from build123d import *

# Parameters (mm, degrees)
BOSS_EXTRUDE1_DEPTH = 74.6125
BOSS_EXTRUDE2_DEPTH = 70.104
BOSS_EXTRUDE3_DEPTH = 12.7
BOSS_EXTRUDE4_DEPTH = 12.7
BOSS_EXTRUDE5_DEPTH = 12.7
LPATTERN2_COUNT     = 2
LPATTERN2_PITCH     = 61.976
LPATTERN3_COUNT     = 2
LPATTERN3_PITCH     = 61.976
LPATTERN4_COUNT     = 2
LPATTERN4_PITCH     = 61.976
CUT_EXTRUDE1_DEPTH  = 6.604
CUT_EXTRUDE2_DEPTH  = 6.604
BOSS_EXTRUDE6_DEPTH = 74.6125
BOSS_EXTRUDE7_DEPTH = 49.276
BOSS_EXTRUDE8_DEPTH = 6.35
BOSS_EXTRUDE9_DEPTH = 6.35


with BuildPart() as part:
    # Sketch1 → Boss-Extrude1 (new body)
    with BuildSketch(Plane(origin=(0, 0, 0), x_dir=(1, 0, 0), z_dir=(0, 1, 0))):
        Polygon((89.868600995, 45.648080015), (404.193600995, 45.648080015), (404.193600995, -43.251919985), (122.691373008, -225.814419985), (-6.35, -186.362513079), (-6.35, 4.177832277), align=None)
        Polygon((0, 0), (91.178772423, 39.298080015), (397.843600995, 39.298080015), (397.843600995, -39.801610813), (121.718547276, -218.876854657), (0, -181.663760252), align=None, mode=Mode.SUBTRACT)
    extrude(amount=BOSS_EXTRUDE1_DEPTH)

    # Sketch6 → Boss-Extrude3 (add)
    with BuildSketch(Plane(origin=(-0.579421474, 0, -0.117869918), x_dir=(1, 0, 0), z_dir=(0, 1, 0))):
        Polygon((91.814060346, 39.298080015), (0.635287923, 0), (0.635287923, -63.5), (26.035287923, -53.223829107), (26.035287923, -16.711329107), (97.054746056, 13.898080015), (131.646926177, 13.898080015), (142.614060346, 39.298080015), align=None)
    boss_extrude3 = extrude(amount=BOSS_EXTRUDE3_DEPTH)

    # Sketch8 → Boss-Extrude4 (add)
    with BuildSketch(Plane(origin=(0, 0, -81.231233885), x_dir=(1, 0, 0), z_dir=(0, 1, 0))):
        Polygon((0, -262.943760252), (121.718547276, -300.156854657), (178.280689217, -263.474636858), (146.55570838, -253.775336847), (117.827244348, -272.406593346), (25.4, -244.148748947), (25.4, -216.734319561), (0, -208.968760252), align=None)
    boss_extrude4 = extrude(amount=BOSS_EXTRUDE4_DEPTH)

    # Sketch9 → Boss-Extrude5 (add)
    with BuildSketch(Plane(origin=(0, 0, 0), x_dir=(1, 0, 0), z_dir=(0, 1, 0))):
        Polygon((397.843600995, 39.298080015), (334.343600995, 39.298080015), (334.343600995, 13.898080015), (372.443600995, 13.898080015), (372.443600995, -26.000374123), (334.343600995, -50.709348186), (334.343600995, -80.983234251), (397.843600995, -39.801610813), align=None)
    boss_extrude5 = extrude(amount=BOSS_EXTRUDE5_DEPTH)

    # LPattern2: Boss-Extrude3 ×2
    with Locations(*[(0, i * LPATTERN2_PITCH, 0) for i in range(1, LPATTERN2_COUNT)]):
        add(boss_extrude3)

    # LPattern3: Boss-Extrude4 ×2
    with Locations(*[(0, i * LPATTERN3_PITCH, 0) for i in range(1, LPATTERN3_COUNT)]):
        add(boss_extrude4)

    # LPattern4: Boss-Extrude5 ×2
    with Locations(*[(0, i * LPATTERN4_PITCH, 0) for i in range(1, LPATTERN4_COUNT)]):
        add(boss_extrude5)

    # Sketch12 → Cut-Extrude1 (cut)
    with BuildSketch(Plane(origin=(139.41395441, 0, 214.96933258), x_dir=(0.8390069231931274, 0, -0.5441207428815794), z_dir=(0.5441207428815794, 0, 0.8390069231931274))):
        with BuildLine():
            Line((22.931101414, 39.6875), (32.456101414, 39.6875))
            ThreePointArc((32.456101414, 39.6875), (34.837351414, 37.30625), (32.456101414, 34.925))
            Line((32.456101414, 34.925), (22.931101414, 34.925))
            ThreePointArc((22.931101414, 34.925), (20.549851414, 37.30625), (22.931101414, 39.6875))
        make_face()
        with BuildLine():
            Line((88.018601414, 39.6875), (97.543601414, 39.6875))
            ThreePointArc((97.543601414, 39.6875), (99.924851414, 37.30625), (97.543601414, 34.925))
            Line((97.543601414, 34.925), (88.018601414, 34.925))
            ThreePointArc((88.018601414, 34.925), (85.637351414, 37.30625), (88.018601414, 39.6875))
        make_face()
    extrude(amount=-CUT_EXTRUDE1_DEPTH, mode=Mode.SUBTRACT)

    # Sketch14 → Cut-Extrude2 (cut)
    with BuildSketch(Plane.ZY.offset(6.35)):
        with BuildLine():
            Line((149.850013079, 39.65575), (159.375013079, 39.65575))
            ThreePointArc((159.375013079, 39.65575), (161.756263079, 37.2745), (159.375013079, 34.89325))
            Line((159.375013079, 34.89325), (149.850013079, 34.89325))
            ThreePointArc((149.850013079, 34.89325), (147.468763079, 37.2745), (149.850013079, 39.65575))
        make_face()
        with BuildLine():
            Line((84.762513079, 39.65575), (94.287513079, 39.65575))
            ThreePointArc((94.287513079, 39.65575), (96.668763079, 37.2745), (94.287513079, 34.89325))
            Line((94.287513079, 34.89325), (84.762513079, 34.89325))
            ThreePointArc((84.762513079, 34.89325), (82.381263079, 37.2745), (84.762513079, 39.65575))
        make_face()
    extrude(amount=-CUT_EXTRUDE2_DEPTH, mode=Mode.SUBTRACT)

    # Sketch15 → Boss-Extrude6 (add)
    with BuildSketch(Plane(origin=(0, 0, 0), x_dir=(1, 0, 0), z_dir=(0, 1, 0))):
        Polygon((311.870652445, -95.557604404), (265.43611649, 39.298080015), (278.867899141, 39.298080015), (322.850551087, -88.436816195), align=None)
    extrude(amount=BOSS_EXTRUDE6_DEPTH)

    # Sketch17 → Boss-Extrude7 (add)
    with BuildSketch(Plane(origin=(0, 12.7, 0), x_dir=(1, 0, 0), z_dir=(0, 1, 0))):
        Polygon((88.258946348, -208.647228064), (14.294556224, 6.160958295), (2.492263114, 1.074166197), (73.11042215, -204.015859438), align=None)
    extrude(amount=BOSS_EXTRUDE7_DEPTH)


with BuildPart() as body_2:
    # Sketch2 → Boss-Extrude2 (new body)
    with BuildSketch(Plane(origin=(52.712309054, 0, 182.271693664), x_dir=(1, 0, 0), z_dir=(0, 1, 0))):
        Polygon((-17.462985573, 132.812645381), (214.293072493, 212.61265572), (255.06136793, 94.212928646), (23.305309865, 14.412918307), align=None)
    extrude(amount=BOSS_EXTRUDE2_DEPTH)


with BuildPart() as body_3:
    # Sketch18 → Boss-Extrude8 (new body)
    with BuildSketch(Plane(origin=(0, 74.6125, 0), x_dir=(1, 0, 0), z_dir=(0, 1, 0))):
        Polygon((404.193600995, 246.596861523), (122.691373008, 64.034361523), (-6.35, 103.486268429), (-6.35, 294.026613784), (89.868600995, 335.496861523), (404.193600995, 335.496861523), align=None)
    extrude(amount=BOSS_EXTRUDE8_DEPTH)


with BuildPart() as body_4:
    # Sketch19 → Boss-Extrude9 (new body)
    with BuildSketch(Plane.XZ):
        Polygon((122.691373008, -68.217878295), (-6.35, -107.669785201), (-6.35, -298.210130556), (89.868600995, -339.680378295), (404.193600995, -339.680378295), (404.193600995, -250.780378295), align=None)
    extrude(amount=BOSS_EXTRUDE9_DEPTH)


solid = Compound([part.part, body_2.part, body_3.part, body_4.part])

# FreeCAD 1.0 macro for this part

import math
import FreeCAD as App
import Part
import Sketcher
Q = App.Units.Quantity

doc = App.newDocument("Part")
body = doc.addObject("PartDesign::Body", "Body")

# Sketch on XZ plane
sketch1 = body.newObject("Sketcher::SketchObject", "Sketch")
sketch1.AttachmentSupport = (doc.getObject("XZ_Plane"), [""])
sketch1.MapMode = "FlatFace"
sketch1.addGeometry([
    Part.LineSegment(App.Vector(404, -46, 0), App.Vector(90, -46, 0)),  # 0
    Part.LineSegment(App.Vector(90, -46, 0), App.Vector(-6, -4, 0)),  # 1
    Part.LineSegment(App.Vector(-6, -4, 0), App.Vector(-6, 186, 0)),  # 2
    Part.LineSegment(App.Vector(-6, 186, 0), App.Vector(123, 226, 0)),  # 3
    Part.LineSegment(App.Vector(123, 226, 0), App.Vector(404, 43, 0)),  # 4
    Part.LineSegment(App.Vector(404, 43, 0), App.Vector(404, -46, 0)),  # 5
    Part.LineSegment(App.Vector(0, 0, 0), App.Vector(91, -39, 0)),  # 6
    Part.LineSegment(App.Vector(91, -39, 0), App.Vector(398, -39, 0)),  # 7
    Part.LineSegment(App.Vector(398, -39, 0), App.Vector(398, 40, 0)),  # 8
    Part.LineSegment(App.Vector(398, 40, 0), App.Vector(122, 219, 0)),  # 9
    Part.LineSegment(App.Vector(122, 219, 0), App.Vector(0, 182, 0)),  # 10
    Part.LineSegment(App.Vector(0, 182, 0), App.Vector(0, 0, 0)),  # 11
], False)
sketch1.addConstraint([
    Sketcher.Constraint("Coincident", 0, 2, 1, 1),
    Sketcher.Constraint("Coincident", 1, 2, 2, 1),
    Sketcher.Constraint("Coincident", 2, 2, 3, 1),
    Sketcher.Constraint("Coincident", 3, 2, 4, 1),
    Sketcher.Constraint("Coincident", 4, 2, 5, 1),
    Sketcher.Constraint("Coincident", 5, 2, 0, 1),
    Sketcher.Constraint("Coincident", 6, 2, 7, 1),
    Sketcher.Constraint("Coincident", 7, 2, 8, 1),
    Sketcher.Constraint("Coincident", 8, 2, 9, 1),
    Sketcher.Constraint("Coincident", 9, 2, 10, 1),
    Sketcher.Constraint("Coincident", 10, 2, 11, 1),
    Sketcher.Constraint("Coincident", 11, 2, 6, 1),
    Sketcher.Constraint("Horizontal", 0),
    Sketcher.Constraint("Vertical", 2),
    Sketcher.Constraint("Vertical", 5),
    Sketcher.Constraint("Horizontal", 7),
    Sketcher.Constraint("Vertical", 8),
    Sketcher.Constraint("Vertical", 11),
    Sketcher.Constraint("Coincident", 11, 2, -1, 1),
    Sketcher.Constraint("Parallel", 1, 6),
    Sketcher.Constraint("Parallel", 4, 9),
    Sketcher.Constraint("Parallel", 3, 10),
    Sketcher.Constraint("DistanceY", 5, 2, 5, 1, Q("3.5 in")),
    Sketcher.Constraint("Angle", 3, Q("17 deg")),
    Sketcher.Constraint("DistanceX", 0, 2, 0, 1, Q("12.375 in")),
    Sketcher.Constraint("DistanceX", 1, 2, -1, 1, Q("0.25 in")),
    Sketcher.Constraint("DistanceY", 0, 2, 6, 2, Q("0.25 in")),
    Sketcher.Constraint("DistanceX", 7, 2, 5, 2, Q("0.25 in")),
    Sketcher.Constraint("Distance", 1, Q("4.125 in")),
    Sketcher.Constraint("Distance", 3, Q("5.3125 in")),
    Sketcher.Constraint("DistanceY", 0, 2, 3, 2, Q("10.6875 in")),
    Sketcher.Constraint("DistanceX", 7, 1, 7, 2, Q("306.664829 mm")),
    Sketcher.Constraint("DistanceY", 8, 1, 8, 2, Q("79.099691 mm")),
    Sketcher.Constraint("DistanceY", 11, 2, 11, 1, Q("181.66376 mm")),
    Sketcher.Constraint("DistanceX", -1, 1, 0, 2, Q("89.868601 mm")),
])
pad1 = body.newObject("PartDesign::Pad", "Pad")
pad1.Profile = sketch1
pad1.Length = Q("2.9375 in")
pad1.Reversed = True

# Sketch on XZ plane
sketch2 = body.newObject("Sketcher::SketchObject", "Sketch001")
sketch2.AttachmentSupport = (doc.getObject("XZ_Plane"), [""])
sketch2.MapMode = "FlatFace"
sketch2.addGeometry([
    Part.LineSegment(App.Vector(91, -39, 0), App.Vector(0, 0, 0)),  # 0
    Part.LineSegment(App.Vector(0, 0, 0), App.Vector(0, 63, 0)),  # 1
    Part.LineSegment(App.Vector(0, 63, 0), App.Vector(25, 53, 0)),  # 2
    Part.LineSegment(App.Vector(25, 53, 0), App.Vector(25, 17, 0)),  # 3
    Part.LineSegment(App.Vector(25, 17, 0), App.Vector(96, -14, 0)),  # 4
    Part.LineSegment(App.Vector(96, -14, 0), App.Vector(131, -14, 0)),  # 5
    Part.LineSegment(App.Vector(131, -14, 0), App.Vector(142, -39, 0)),  # 6
    Part.LineSegment(App.Vector(142, -39, 0), App.Vector(91, -39, 0)),  # 7
], False)
sketch2.addConstraint([
    Sketcher.Constraint("Coincident", 0, 2, 1, 1),
    Sketcher.Constraint("Coincident", 1, 2, 2, 1),
    Sketcher.Constraint("Coincident", 2, 2, 3, 1),
    Sketcher.Constraint("Coincident", 3, 2, 4, 1),
    Sketcher.Constraint("Coincident", 4, 2, 5, 1),
    Sketcher.Constraint("Coincident", 5, 2, 6, 1),
    Sketcher.Constraint("Coincident", 6, 2, 7, 1),
    Sketcher.Constraint("Coincident", 7, 2, 0, 1),
    Sketcher.Constraint("Vertical", 1),
    Sketcher.Constraint("Vertical", 3),
    Sketcher.Constraint("Horizontal", 5),
    Sketcher.Constraint("Horizontal", 7),
    Sketcher.Constraint("Parallel", 0, 4),
    Sketcher.Constraint("DistanceX", 7, 2, 7, 1, Q("2 in")),
    Sketcher.Constraint("DistanceY", 1, 1, 1, 2, Q("2.5 in")),
    Sketcher.Constraint("DistanceX", 1, 2, 2, 2, Q("1 in")),
    Sketcher.Constraint("DistanceY", 6, 2, 5, 2, Q("1 in")),
    Sketcher.Constraint("DistanceY", 3, 2, 3, 1, Q("1.4375 in")),
    Sketcher.Constraint("DistanceX", 5, 1, 5, 2, Q("34.59218 mm")),
    Sketcher.Constraint("Distance", 4, Q("77.334981 mm")),
    Sketcher.Constraint("Distance", 6, Q("27.666551 mm")),
    Sketcher.Constraint("DistanceY", 0, 2, -1, 1, Q("0.11787 mm")),
    Sketcher.Constraint("DistanceY", -1, 1, 2, 2, Q("53.105959 mm")),
    Sketcher.Constraint("DistanceX", -1, 1, 6, 2, Q("142.034639 mm")),
])
pad2 = body.newObject("PartDesign::Pad", "Pad001")
pad2.Profile = sketch2
pad2.Length = Q("0.5 in")
pad2.Reversed = True

# Sketch on XZ plane
sketch3 = body.newObject("Sketcher::SketchObject", "Sketch002")
sketch3.AttachmentSupport = (doc.getObject("XZ_Plane"), [""])
sketch3.MapMode = "FlatFace"
sketch3.addGeometry([
    Part.LineSegment(App.Vector(0, 182, 0), App.Vector(122, 219, 0)),  # 0
    Part.LineSegment(App.Vector(122, 219, 0), App.Vector(178, 182, 0)),  # 1
    Part.LineSegment(App.Vector(178, 182, 0), App.Vector(147, 173, 0)),  # 2
    Part.LineSegment(App.Vector(147, 173, 0), App.Vector(118, 191, 0)),  # 3
    Part.LineSegment(App.Vector(118, 191, 0), App.Vector(25, 163, 0)),  # 4
    Part.LineSegment(App.Vector(25, 163, 0), App.Vector(25, 136, 0)),  # 5
    Part.LineSegment(App.Vector(25, 136, 0), App.Vector(0, 128, 0)),  # 6
    Part.LineSegment(App.Vector(0, 128, 0), App.Vector(0, 182, 0)),  # 7
], False)
sketch3.addConstraint([
    Sketcher.Constraint("Coincident", 0, 2, 1, 1),
    Sketcher.Constraint("Coincident", 1, 2, 2, 1),
    Sketcher.Constraint("Coincident", 2, 2, 3, 1),
    Sketcher.Constraint("Coincident", 3, 2, 4, 1),
    Sketcher.Constraint("Coincident", 4, 2, 5, 1),
    Sketcher.Constraint("Coincident", 5, 2, 6, 1),
    Sketcher.Constraint("Coincident", 6, 2, 7, 1),
    Sketcher.Constraint("Coincident", 7, 2, 0, 1),
    Sketcher.Constraint("Vertical", 5),
    Sketcher.Constraint("Vertical", 7),
    Sketcher.Constraint("PointOnObject", 6, 2, -2),
    Sketcher.Constraint("Parallel", 0, 2),
    Sketcher.Constraint("Parallel", 1, 3),
    Sketcher.Constraint("Parallel", 2, 4),
    Sketcher.Constraint("Parallel", 4, 6),
    Sketcher.Constraint("DistanceX", -1, 1, 4, 2, Q("1 in")),
    Sketcher.Constraint("Angle", 0, Q("17 deg")),
    Sketcher.Constraint("DistanceY", 7, 1, 7, 2, Q("2.125 in")),
    Sketcher.Constraint("DistanceY", 5, 2, 5, 1, Q("27.414429 mm")),
    Sketcher.Constraint("DistanceY", 2, 2, 1, 2, Q("9.6993 mm")),
    Sketcher.Constraint("Distance", 0, Q("127.280081 mm")),
    Sketcher.Constraint("DistanceY", -1, 1, 0, 2, Q("218.925621 mm")),
    Sketcher.Constraint("DistanceX", -1, 1, 1, 2, Q("178.280689 mm")),
    Sketcher.Constraint("DistanceY", -1, 1, 3, 2, Q("191.175359 mm")),
])
pad3 = body.newObject("PartDesign::Pad", "Pad002")
pad3.Profile = sketch3
pad3.Length = Q("0.5 in")
pad3.Reversed = True

# Sketch on XZ plane
sketch4 = body.newObject("Sketcher::SketchObject", "Sketch003")
sketch4.AttachmentSupport = (doc.getObject("XZ_Plane"), [""])
sketch4.MapMode = "FlatFace"
sketch4.addGeometry([
    Part.LineSegment(App.Vector(398, -39, 0), App.Vector(334, -39, 0)),  # 0
    Part.LineSegment(App.Vector(334, -39, 0), App.Vector(334, -14, 0)),  # 1
    Part.LineSegment(App.Vector(334, -14, 0), App.Vector(372, -14, 0)),  # 2
    Part.LineSegment(App.Vector(372, -14, 0), App.Vector(372, 26, 0)),  # 3
    Part.LineSegment(App.Vector(372, 26, 0), App.Vector(334, 51, 0)),  # 4
    Part.LineSegment(App.Vector(334, 51, 0), App.Vector(334, 81, 0)),  # 5
    Part.LineSegment(App.Vector(334, 81, 0), App.Vector(398, 40, 0)),  # 6
    Part.LineSegment(App.Vector(398, 40, 0), App.Vector(398, -39, 0)),  # 7
], False)
sketch4.addConstraint([
    Sketcher.Constraint("Coincident", 0, 2, 1, 1),
    Sketcher.Constraint("Coincident", 1, 2, 2, 1),
    Sketcher.Constraint("Coincident", 2, 2, 3, 1),
    Sketcher.Constraint("Coincident", 3, 2, 4, 1),
    Sketcher.Constraint("Coincident", 4, 2, 5, 1),
    Sketcher.Constraint("Coincident", 5, 2, 6, 1),
    Sketcher.Constraint("Coincident", 6, 2, 7, 1),
    Sketcher.Constraint("Coincident", 7, 2, 0, 1),
    Sketcher.Constraint("Horizontal", 0),
    Sketcher.Constraint("Vertical", 1),
    Sketcher.Constraint("Horizontal", 2),
    Sketcher.Constraint("Vertical", 3),
    Sketcher.Constraint("Vertical", 5),
    Sketcher.Constraint("Vertical", 7),
    Sketcher.Constraint("Parallel", 4, 6),
    Sketcher.Constraint("Vertical", 1, 2, 4, 2),
    Sketcher.Constraint("DistanceY", 1, 1, 1, 2, Q("1 in")),
    Sketcher.Constraint("DistanceX", 0, 2, 0, 1, Q("2.5 in")),
    Sketcher.Constraint("DistanceX", 2, 1, 2, 2, Q("1.5 in")),
    Sketcher.Constraint("DistanceY", 7, 2, 7, 1, Q("79.099691 mm")),
    Sketcher.Constraint("DistanceX", -1, 1, 0, 2, Q("334.343601 mm")),
    Sketcher.Constraint("Distance", 4, Q("45.410829 mm")),
    Sketcher.Constraint("DistanceY", 3, 1, 3, 2, Q("39.898454 mm")),
    Sketcher.Constraint("DistanceY", 0, 2, -1, 1, Q("39.29808 mm")),
])
pad4 = body.newObject("PartDesign::Pad", "Pad003")
pad4.Profile = sketch4
pad4.Length = Q("0.5 in")
pad4.Reversed = True
doc.recompute()

linearpattern = body.newObject("PartDesign::LinearPattern", "LinearPattern")
linearpattern.Originals = [pad2]
linearpattern.Direction = (doc.getObject("Y_Axis"), [""])
linearpattern.Mode = "offset"
linearpattern.Offset = Q("2.44 in")
linearpattern.Occurrences = 2
body.Tip = linearpattern
doc.recompute()

linearpattern2 = body.newObject("PartDesign::LinearPattern", "LinearPattern001")
linearpattern2.Originals = [pad3]
linearpattern2.Direction = (doc.getObject("Y_Axis"), [""])
linearpattern2.Mode = "offset"
linearpattern2.Offset = Q("2.44 in")
linearpattern2.Occurrences = 2
body.Tip = linearpattern2
doc.recompute()

linearpattern3 = body.newObject("PartDesign::LinearPattern", "LinearPattern002")
linearpattern3.Originals = [pad4]
linearpattern3.Direction = (doc.getObject("Y_Axis"), [""])
linearpattern3.Mode = "offset"
linearpattern3.Offset = Q("2.44 in")
linearpattern3.Occurrences = 2
body.Tip = linearpattern3

# Sketch on an angled plane
sketch5 = body.newObject("Sketcher::SketchObject", "Sketch004")
sketch5.Placement = App.Placement(App.Vector(139.413954, 0, 214.969333), App.Rotation(App.Vector(0.839006923, 0, -0.544120743), App.Vector(0, 1, 0), App.Vector(0.544120743, 0, 0.839006923), "ZXY"))
sketch5.addGeometry([
    Part.LineSegment(App.Vector(32.5, 39.7, 0), App.Vector(22.9, 39.7, 0)),  # 0
    Part.ArcOfCircle(Part.Circle(App.Vector(22.9, 37.3, 0), App.Vector(0, 0, 1), 2.4), math.radians(90), math.radians(270)),  # 1
    Part.LineSegment(App.Vector(22.9, 34.9, 0), App.Vector(32.5, 34.9, 0)),  # 2
    Part.ArcOfCircle(Part.Circle(App.Vector(32.5, 37.3, 0), App.Vector(0, 0, 1), 2.4), math.radians(-90), math.radians(90)),  # 3
    Part.LineSegment(App.Vector(97.5, 39.7, 0), App.Vector(88, 39.7, 0)),  # 4
    Part.ArcOfCircle(Part.Circle(App.Vector(88, 37.3, 0), App.Vector(0, 0, 1), 2.4), math.radians(90), math.radians(270)),  # 5
    Part.LineSegment(App.Vector(88, 34.9, 0), App.Vector(97.5, 34.9, 0)),  # 6
    Part.ArcOfCircle(Part.Circle(App.Vector(97.5, 37.3, 0), App.Vector(0, 0, 1), 2.4), math.radians(-90), math.radians(90)),  # 7
], False)
sketch5.addConstraint([
    Sketcher.Constraint("Tangent", 0, 2, 1, 1),
    Sketcher.Constraint("Tangent", 1, 2, 2, 1),
    Sketcher.Constraint("Tangent", 2, 2, 3, 1),
    Sketcher.Constraint("Tangent", 3, 2, 0, 1),
    Sketcher.Constraint("Tangent", 4, 2, 5, 1),
    Sketcher.Constraint("Tangent", 5, 2, 6, 1),
    Sketcher.Constraint("Tangent", 6, 2, 7, 1),
    Sketcher.Constraint("Tangent", 7, 2, 4, 1),
    Sketcher.Constraint("Horizontal", 0),
    Sketcher.Constraint("Horizontal", 2),
    Sketcher.Constraint("Horizontal", 4),
    Sketcher.Constraint("Horizontal", 6),
    Sketcher.Constraint("Equal", 3, 5),
    Sketcher.Constraint("Horizontal", 3, 3, 5, 3),
    Sketcher.Constraint("Equal", 2, 4),
    Sketcher.Constraint("Radius", 1, Q("0.09375 in")),
    Sketcher.Constraint("DistanceX", 0, 2, 0, 1, Q("0.375 in")),
    Sketcher.Constraint("DistanceY", -1, 1, 1, 3, Q("1.46875 in")),
    Sketcher.Constraint("DistanceX", 3, 3, 5, 3, Q("2.1875 in")),
    Sketcher.Constraint("DistanceX", -1, 1, 1, 3, Q("22.931101 mm")),
])
pocket1 = body.newObject("PartDesign::Pocket", "Pocket")
pocket1.Profile = sketch5
pocket1.Length = Q("0.26 in")

# Sketch on YZ plane
sketch6 = body.newObject("Sketcher::SketchObject", "Sketch005")
sketch6.AttachmentSupport = (doc.getObject("YZ_Plane"), [""])
sketch6.MapMode = "FlatFace"
sketch6.AttachmentOffset = App.Placement(App.Vector(0, 0, -0.25 * 25.4), App.Rotation())
sketch6.addGeometry([
    Part.LineSegment(App.Vector(39.7, 159.4, 0), App.Vector(39.7, 149.9, 0)),  # 0
    Part.ArcOfCircle(Part.Circle(App.Vector(37.3, 149.9, 0), App.Vector(0, 0, 1), 2.4), math.radians(180), math.radians(360)),  # 1
    Part.LineSegment(App.Vector(34.9, 149.9, 0), App.Vector(34.9, 159.4, 0)),  # 2
    Part.ArcOfCircle(Part.Circle(App.Vector(37.3, 159.4, 0), App.Vector(0, 0, 1), 2.4), math.radians(0), math.radians(180)),  # 3
    Part.LineSegment(App.Vector(39.7, 94.3, 0), App.Vector(39.7, 84.8, 0)),  # 4
    Part.ArcOfCircle(Part.Circle(App.Vector(37.3, 84.8, 0), App.Vector(0, 0, 1), 2.4), math.radians(180), math.radians(360)),  # 5
    Part.LineSegment(App.Vector(34.9, 84.8, 0), App.Vector(34.9, 94.3, 0)),  # 6
    Part.ArcOfCircle(Part.Circle(App.Vector(37.3, 94.3, 0), App.Vector(0, 0, 1), 2.4), math.radians(0), math.radians(180)),  # 7
], False)
sketch6.addConstraint([
    Sketcher.Constraint("Tangent", 0, 2, 1, 2),
    Sketcher.Constraint("Tangent", 1, 1, 2, 1),
    Sketcher.Constraint("Tangent", 2, 2, 3, 2),
    Sketcher.Constraint("Tangent", 3, 1, 0, 1),
    Sketcher.Constraint("Tangent", 4, 2, 5, 2),
    Sketcher.Constraint("Tangent", 5, 1, 6, 1),
    Sketcher.Constraint("Tangent", 6, 2, 7, 2),
    Sketcher.Constraint("Tangent", 7, 1, 4, 1),
    Sketcher.Constraint("Vertical", 0),
    Sketcher.Constraint("Vertical", 2),
    Sketcher.Constraint("Vertical", 4),
    Sketcher.Constraint("Vertical", 6),
    Sketcher.Constraint("Equal", 3, 5),
    Sketcher.Constraint("Vertical", 3, 3, 5, 3),
    Sketcher.Constraint("Equal", 2, 4),
    Sketcher.Constraint("Radius", 1, Q("0.09375 in")),
    Sketcher.Constraint("DistanceY", 0, 2, 0, 1, Q("0.375 in")),
    Sketcher.Constraint("DistanceY", 5, 3, 1, 3, Q("2.5625 in")),
    Sketcher.Constraint("DistanceX", -1, 1, 1, 3, Q("1.4675 in")),
    Sketcher.Constraint("DistanceY", -1, 1, 1, 3, Q("149.850013 mm")),
])
pocket2 = body.newObject("PartDesign::Pocket", "Pocket001")
pocket2.Profile = sketch6
pocket2.Length = Q("0.26 in")
pocket2.Reversed = True

# Sketch on XZ plane
sketch7 = body.newObject("Sketcher::SketchObject", "Sketch006")
sketch7.AttachmentSupport = (doc.getObject("XZ_Plane"), [""])
sketch7.MapMode = "FlatFace"
sketch7.addGeometry([
    Part.LineSegment(App.Vector(265, -39, 0), App.Vector(312, 96, 0)),
    Part.LineSegment(App.Vector(312, 96, 0), App.Vector(323, 88, 0)),
    Part.LineSegment(App.Vector(323, 88, 0), App.Vector(279, -39, 0)),
    Part.LineSegment(App.Vector(279, -39, 0), App.Vector(265, -39, 0)),
], False)
sketch7.addConstraint([
    Sketcher.Constraint("Coincident", 0, 2, 1, 1),
    Sketcher.Constraint("Coincident", 1, 2, 2, 1),
    Sketcher.Constraint("Coincident", 2, 2, 3, 1),
    Sketcher.Constraint("Coincident", 3, 2, 0, 1),
    Sketcher.Constraint("Horizontal", 3),
    Sketcher.Constraint("Parallel", 0, 2),
    Sketcher.Constraint("Angle", 0, Q("71 deg")),
    Sketcher.Constraint("DistanceX", -1, 1, 2, 2, Q("278.867899 mm")),
    Sketcher.Constraint("DistanceX", 0, 2, 1, 2, Q("10.979899 mm")),
    Sketcher.Constraint("Distance", 0, Q("142.626161 mm")),
    Sketcher.Constraint("Distance", 1, Q("13.08678 mm")),
    Sketcher.Constraint("DistanceY", 2, 2, -1, 1, Q("39.29808 mm")),
])
pad5 = body.newObject("PartDesign::Pad", "Pad004")
pad5.Profile = sketch7
pad5.Length = Q("2.9375 in")
pad5.Reversed = True

# Sketch on XZ plane
sketch8 = body.newObject("Sketcher::SketchObject", "Sketch007")
sketch8.AttachmentSupport = (doc.getObject("XZ_Plane"), [""])
sketch8.MapMode = "FlatFace"
sketch8.AttachmentOffset = App.Placement(App.Vector(0, 0, -0.5 * 25.4), App.Rotation())
sketch8.addGeometry([
    Part.LineSegment(App.Vector(88, 209, 0), App.Vector(14, -6, 0)),
    Part.LineSegment(App.Vector(14, -6, 0), App.Vector(2, -1, 0)),
    Part.LineSegment(App.Vector(2, -1, 0), App.Vector(73, 204, 0)),
    Part.LineSegment(App.Vector(73, 204, 0), App.Vector(88, 209, 0)),
], False)
sketch8.addConstraint([
    Sketcher.Constraint("Coincident", 0, 2, 1, 1),
    Sketcher.Constraint("Coincident", 1, 2, 2, 1),
    Sketcher.Constraint("Coincident", 2, 2, 3, 1),
    Sketcher.Constraint("Coincident", 3, 2, 0, 1),
    Sketcher.Constraint("Parallel", 0, 2),
    Sketcher.Constraint("Angle", 0, Q("-109 deg")),
    Sketcher.Constraint("Angle", 3, Q("17 deg")),
    Sketcher.Constraint("Distance", 0, Q("227.18558 mm")),
    Sketcher.Constraint("Distance", 1, Q("12.851832 mm")),
    Sketcher.Constraint("DistanceY", 0, 2, -1, 1, Q("6.160958 mm")),
    Sketcher.Constraint("DistanceY", -1, 1, 2, 2, Q("204.015859 mm")),
    Sketcher.Constraint("DistanceX", -1, 1, 0, 2, Q("14.294556 mm")),
])
pad6 = body.newObject("PartDesign::Pad", "Pad005")
pad6.Profile = sketch8
pad6.Length = Q("1.94 in")
pad6.Reversed = True
body2 = doc.addObject("PartDesign::Body", "Body001")

# Sketch on XZ plane
sketch9 = body2.newObject("Sketcher::SketchObject", "Sketch008")
sketch9.AttachmentSupport = (doc.getObject("XZ_Plane001"), [""])
sketch9.MapMode = "FlatFace"
sketch9.addGeometry([
    Part.LineSegment(App.Vector(267, -30, 0), App.Vector(35, 49, 0)),
    Part.LineSegment(App.Vector(35, 49, 0), App.Vector(76, 168, 0)),
    Part.LineSegment(App.Vector(76, 168, 0), App.Vector(308, 88, 0)),
    Part.LineSegment(App.Vector(308, 88, 0), App.Vector(267, -30, 0)),
], False)
sketch9.addConstraint([
    Sketcher.Constraint("Coincident", 0, 2, 1, 1),
    Sketcher.Constraint("Coincident", 1, 2, 2, 1),
    Sketcher.Constraint("Coincident", 2, 2, 3, 1),
    Sketcher.Constraint("Coincident", 3, 2, 0, 1),
    Sketcher.Constraint("Perpendicular", 0, 1),
    Sketcher.Constraint("Perpendicular", 1, 2),
    Sketcher.Constraint("Perpendicular", 2, 3),
    Sketcher.Constraint("Angle", 0, Q("161 deg")),
    Sketcher.Constraint("Distance", 0, Q("9.65 in")),
    Sketcher.Constraint("Distance", 1, Q("4.93 in")),
    Sketcher.Constraint("DistanceY", -1, 1, 0, 2, Q("49.459048 mm")),
    Sketcher.Constraint("DistanceX", -1, 1, 1, 2, Q("76.017619 mm")),
])
pad7 = body2.newObject("PartDesign::Pad", "Pad006")
pad7.Profile = sketch9
pad7.Length = Q("2.76 in")
pad7.Reversed = True
body3 = doc.addObject("PartDesign::Body", "Body002")

# Sketch on XZ plane
sketch10 = body3.newObject("Sketcher::SketchObject", "Sketch009")
sketch10.AttachmentSupport = (doc.getObject("XZ_Plane002"), [""])
sketch10.MapMode = "FlatFace"
sketch10.AttachmentOffset = App.Placement(App.Vector(0, 0, -2.9375 * 25.4), App.Rotation())
sketch10.addGeometry([
    Part.LineSegment(App.Vector(123, -64, 0), App.Vector(404, -247, 0)),  # 0
    Part.LineSegment(App.Vector(404, -247, 0), App.Vector(404, -335, 0)),  # 1
    Part.LineSegment(App.Vector(404, -335, 0), App.Vector(90, -335, 0)),  # 2
    Part.LineSegment(App.Vector(90, -335, 0), App.Vector(-6, -294, 0)),  # 3
    Part.LineSegment(App.Vector(-6, -294, 0), App.Vector(-6, -103, 0)),  # 4
    Part.LineSegment(App.Vector(-6, -103, 0), App.Vector(123, -64, 0)),  # 5
], False)
sketch10.addConstraint([
    Sketcher.Constraint("Coincident", 0, 2, 1, 1),
    Sketcher.Constraint("Coincident", 1, 2, 2, 1),
    Sketcher.Constraint("Coincident", 2, 2, 3, 1),
    Sketcher.Constraint("Coincident", 3, 2, 4, 1),
    Sketcher.Constraint("Coincident", 4, 2, 5, 1),
    Sketcher.Constraint("Coincident", 5, 2, 0, 1),
    Sketcher.Constraint("Vertical", 1),
    Sketcher.Constraint("Horizontal", 2),
    Sketcher.Constraint("Vertical", 4),
    Sketcher.Constraint("DistanceY", 1, 2, 1, 1, Q("3.5 in")),
    Sketcher.Constraint("Angle", 5, Q("17 deg")),
    Sketcher.Constraint("DistanceX", 2, 2, 2, 1, Q("12.375 in")),
    Sketcher.Constraint("DistanceX", 3, 2, -1, 1, Q("0.25 in")),
    Sketcher.Constraint("Distance", 3, Q("4.125 in")),
    Sketcher.Constraint("Distance", 5, Q("5.3125 in")),
    Sketcher.Constraint("DistanceY", 2, 2, 5, 2, Q("10.6875 in")),
    Sketcher.Constraint("DistanceX", -1, 1, 0, 2, Q("404.193601 mm")),
    Sketcher.Constraint("DistanceY", 0, 2, -1, 1, Q("246.596862 mm")),
])
pad8 = body3.newObject("PartDesign::Pad", "Pad007")
pad8.Profile = sketch10
pad8.Length = Q("0.25 in")
pad8.Reversed = True
body4 = doc.addObject("PartDesign::Body", "Body003")

# Sketch on XZ plane
sketch11 = body4.newObject("Sketcher::SketchObject", "Sketch010")
sketch11.AttachmentSupport = (doc.getObject("XZ_Plane003"), [""])
sketch11.MapMode = "FlatFace"
sketch11.addGeometry([
    Part.LineSegment(App.Vector(123, -68, 0), App.Vector(-6, -108, 0)),  # 0
    Part.LineSegment(App.Vector(-6, -108, 0), App.Vector(-6, -298, 0)),  # 1
    Part.LineSegment(App.Vector(-6, -298, 0), App.Vector(90, -340, 0)),  # 2
    Part.LineSegment(App.Vector(90, -340, 0), App.Vector(404, -340, 0)),  # 3
    Part.LineSegment(App.Vector(404, -340, 0), App.Vector(404, -251, 0)),  # 4
    Part.LineSegment(App.Vector(404, -251, 0), App.Vector(123, -68, 0)),  # 5
], False)
sketch11.addConstraint([
    Sketcher.Constraint("Coincident", 0, 2, 1, 1),
    Sketcher.Constraint("Coincident", 1, 2, 2, 1),
    Sketcher.Constraint("Coincident", 2, 2, 3, 1),
    Sketcher.Constraint("Coincident", 3, 2, 4, 1),
    Sketcher.Constraint("Coincident", 4, 2, 5, 1),
    Sketcher.Constraint("Coincident", 5, 2, 0, 1),
    Sketcher.Constraint("Vertical", 1),
    Sketcher.Constraint("Horizontal", 3),
    Sketcher.Constraint("Vertical", 4),
    Sketcher.Constraint("DistanceY", 4, 1, 4, 2, Q("3.5 in")),
    Sketcher.Constraint("Angle", 0, Q("-163 deg")),
    Sketcher.Constraint("DistanceX", 3, 1, 3, 2, Q("12.375 in")),
    Sketcher.Constraint("DistanceX", 0, 2, -1, 1, Q("0.25 in")),
    Sketcher.Constraint("Distance", 0, Q("5.3125 in")),
    Sketcher.Constraint("Distance", 2, Q("4.125 in")),
    Sketcher.Constraint("DistanceY", 2, 2, 5, 2, Q("10.6875 in")),
    Sketcher.Constraint("DistanceX", -1, 1, 2, 2, Q("89.868601 mm")),
    Sketcher.Constraint("DistanceY", 1, 2, -1, 1, Q("298.210131 mm")),
])
pad9 = body4.newObject("PartDesign::Pad", "Pad008")
pad9.Profile = sketch11
pad9.Length = Q("0.25 in")

doc.recompute()
